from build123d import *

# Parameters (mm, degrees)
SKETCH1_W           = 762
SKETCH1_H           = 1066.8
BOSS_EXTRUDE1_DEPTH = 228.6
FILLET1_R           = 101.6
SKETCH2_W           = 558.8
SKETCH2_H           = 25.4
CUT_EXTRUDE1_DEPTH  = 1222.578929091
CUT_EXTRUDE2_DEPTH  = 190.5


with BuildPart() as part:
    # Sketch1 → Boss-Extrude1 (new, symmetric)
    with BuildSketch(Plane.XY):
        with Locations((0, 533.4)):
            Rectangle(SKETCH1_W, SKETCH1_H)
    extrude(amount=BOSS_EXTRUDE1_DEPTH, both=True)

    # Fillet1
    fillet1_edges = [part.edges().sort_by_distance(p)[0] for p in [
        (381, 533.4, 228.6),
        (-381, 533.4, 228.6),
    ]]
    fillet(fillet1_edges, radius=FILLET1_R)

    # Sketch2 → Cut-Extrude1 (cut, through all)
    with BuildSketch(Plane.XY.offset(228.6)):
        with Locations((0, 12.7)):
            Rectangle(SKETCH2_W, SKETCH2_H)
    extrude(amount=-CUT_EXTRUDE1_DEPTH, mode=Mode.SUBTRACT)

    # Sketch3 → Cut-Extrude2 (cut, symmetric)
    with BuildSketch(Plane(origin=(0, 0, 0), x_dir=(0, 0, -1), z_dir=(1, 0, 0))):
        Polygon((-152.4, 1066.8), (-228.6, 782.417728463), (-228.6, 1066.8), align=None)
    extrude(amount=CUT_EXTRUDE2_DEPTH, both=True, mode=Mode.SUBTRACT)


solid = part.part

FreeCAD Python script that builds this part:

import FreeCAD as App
import Part
import Sketcher
Q = App.Units.Quantity


def edges_at(feature, points):
    """Names of the edges that pass closest to the given points."""
    edges = feature.Shape.Edges
    near = lambda p: min(range(len(edges)), key=lambda i: edges[i].distToShape(Part.Vertex(*p))[0])
    return sorted({f"Edge{near(p) + 1}" for p in points})


def add_polygon(sketch, points):
    """Adds a closed chain of lines whose ends are joined by coincident constraints."""
    first, n = sketch.GeometryCount, len(points)
    for a, b in zip(points, points[1:] + points[:1]):
        sketch.addGeometry(Part.LineSegment(App.Vector(*a, 0), App.Vector(*b, 0)), False)
    for i in range(n):
        sketch.addConstraint(Sketcher.Constraint("Coincident", first + i, 2, first + (i + 1) % n, 1))

doc = App.newDocument("Part")
body = doc.addObject("PartDesign::Body", "Body")

# Sketch on XY plane
sketch1 = body.newObject("Sketcher::SketchObject", "Sketch")
sketch1.AttachmentSupport = (doc.getObject("XY_Plane"), [""])
sketch1.MapMode = "FlatFace"
add_polygon(sketch1, [(-381, 1067), (-381, 0), (381, 0), (381, 1067)])  # lines 0-3
sketch1.addConstraint([
    Sketcher.Constraint("Vertical", 0),
    Sketcher.Constraint("Horizontal", 1),
    Sketcher.Constraint("Vertical", 2),
    Sketcher.Constraint("Horizontal", 3),
    Sketcher.Constraint("Symmetric", 0, 2, 1, 2, -1, 1),
    Sketcher.Constraint("DistanceX", 1, 1, 1, 2, Q("30 in")),
    Sketcher.Constraint("DistanceY", 0, 2, 0, 1, Q("42 in")),
])
pad1 = body.newObject("PartDesign::Pad", "Pad")
pad1.Profile = sketch1
pad1.Length = Q("18 in")
pad1.Midplane = True
doc.recompute()

fillet = body.newObject("PartDesign::Fillet", "Fillet")
fillet.Base = (pad1, edges_at(pad1, [(381, 533.4, 228.6), (-381, 533.4, 228.6)]))
fillet.Radius = Q("4 in")

# Sketch on XY plane
sketch2 = body.newObject("Sketcher::SketchObject", "Sketch001")
sketch2.AttachmentSupport = (doc.getObject("XY_Plane"), [""])
sketch2.MapMode = "FlatFace"
sketch2.AttachmentOffset = App.Placement(App.Vector(0, 0, 9 * 25.4), App.Rotation())
add_polygon(sketch2, [(-279, 25), (-279, 0), (279, 0), (279, 25)])  # lines 0-3
sketch2.addConstraint([
    Sketcher.Constraint("Vertical", 0),
    Sketcher.Constraint("Horizontal", 1),
    Sketcher.Constraint("Vertical", 2),
    Sketcher.Constraint("Horizontal", 3),
    Sketcher.Constraint("Symmetric", 0, 2, 1, 2, -1, 1),
    Sketcher.Constraint("DistanceX", 1, 1, 1, 2, Q("22 in")),
    Sketcher.Constraint("DistanceY", 0, 2, 0, 1, Q("1 in")),
])
pocket1 = body.newObject("PartDesign::Pocket", "Pocket")
pocket1.Profile = sketch2
pocket1.Type = "ThroughAll"

# Sketch on YZ plane
sketch3 = body.newObject("Sketcher::SketchObject", "Sketch002")
sketch3.AttachmentSupport = (doc.getObject("YZ_Plane"), [""])
sketch3.MapMode = "FlatFace"
add_polygon(sketch3, [(782, 229), (1067, 152), (1067, 229)])  # lines 0-2
sketch3.addConstraint([
    Sketcher.Constraint("Vertical", 1),
    Sketcher.Constraint("Horizontal", 2),
    Sketcher.Constraint("DistanceY", 1, 1, 1, 2, Q("3 in")),
    Sketcher.Constraint("DistanceX", -1, 1, 0, 2, Q("42 in")),
    Sketcher.Constraint("DistanceY", -1, 1, 0, 2, Q("6 in")),
    Sketcher.Constraint("Angle", 0, Q("-15 deg")),
])
pocket2 = body.newObject("PartDesign::Pocket", "Pocket001")
pocket2.Profile = sketch3
pocket2.Length = Q("15 in")
pocket2.Midplane = True

doc.recompute()
